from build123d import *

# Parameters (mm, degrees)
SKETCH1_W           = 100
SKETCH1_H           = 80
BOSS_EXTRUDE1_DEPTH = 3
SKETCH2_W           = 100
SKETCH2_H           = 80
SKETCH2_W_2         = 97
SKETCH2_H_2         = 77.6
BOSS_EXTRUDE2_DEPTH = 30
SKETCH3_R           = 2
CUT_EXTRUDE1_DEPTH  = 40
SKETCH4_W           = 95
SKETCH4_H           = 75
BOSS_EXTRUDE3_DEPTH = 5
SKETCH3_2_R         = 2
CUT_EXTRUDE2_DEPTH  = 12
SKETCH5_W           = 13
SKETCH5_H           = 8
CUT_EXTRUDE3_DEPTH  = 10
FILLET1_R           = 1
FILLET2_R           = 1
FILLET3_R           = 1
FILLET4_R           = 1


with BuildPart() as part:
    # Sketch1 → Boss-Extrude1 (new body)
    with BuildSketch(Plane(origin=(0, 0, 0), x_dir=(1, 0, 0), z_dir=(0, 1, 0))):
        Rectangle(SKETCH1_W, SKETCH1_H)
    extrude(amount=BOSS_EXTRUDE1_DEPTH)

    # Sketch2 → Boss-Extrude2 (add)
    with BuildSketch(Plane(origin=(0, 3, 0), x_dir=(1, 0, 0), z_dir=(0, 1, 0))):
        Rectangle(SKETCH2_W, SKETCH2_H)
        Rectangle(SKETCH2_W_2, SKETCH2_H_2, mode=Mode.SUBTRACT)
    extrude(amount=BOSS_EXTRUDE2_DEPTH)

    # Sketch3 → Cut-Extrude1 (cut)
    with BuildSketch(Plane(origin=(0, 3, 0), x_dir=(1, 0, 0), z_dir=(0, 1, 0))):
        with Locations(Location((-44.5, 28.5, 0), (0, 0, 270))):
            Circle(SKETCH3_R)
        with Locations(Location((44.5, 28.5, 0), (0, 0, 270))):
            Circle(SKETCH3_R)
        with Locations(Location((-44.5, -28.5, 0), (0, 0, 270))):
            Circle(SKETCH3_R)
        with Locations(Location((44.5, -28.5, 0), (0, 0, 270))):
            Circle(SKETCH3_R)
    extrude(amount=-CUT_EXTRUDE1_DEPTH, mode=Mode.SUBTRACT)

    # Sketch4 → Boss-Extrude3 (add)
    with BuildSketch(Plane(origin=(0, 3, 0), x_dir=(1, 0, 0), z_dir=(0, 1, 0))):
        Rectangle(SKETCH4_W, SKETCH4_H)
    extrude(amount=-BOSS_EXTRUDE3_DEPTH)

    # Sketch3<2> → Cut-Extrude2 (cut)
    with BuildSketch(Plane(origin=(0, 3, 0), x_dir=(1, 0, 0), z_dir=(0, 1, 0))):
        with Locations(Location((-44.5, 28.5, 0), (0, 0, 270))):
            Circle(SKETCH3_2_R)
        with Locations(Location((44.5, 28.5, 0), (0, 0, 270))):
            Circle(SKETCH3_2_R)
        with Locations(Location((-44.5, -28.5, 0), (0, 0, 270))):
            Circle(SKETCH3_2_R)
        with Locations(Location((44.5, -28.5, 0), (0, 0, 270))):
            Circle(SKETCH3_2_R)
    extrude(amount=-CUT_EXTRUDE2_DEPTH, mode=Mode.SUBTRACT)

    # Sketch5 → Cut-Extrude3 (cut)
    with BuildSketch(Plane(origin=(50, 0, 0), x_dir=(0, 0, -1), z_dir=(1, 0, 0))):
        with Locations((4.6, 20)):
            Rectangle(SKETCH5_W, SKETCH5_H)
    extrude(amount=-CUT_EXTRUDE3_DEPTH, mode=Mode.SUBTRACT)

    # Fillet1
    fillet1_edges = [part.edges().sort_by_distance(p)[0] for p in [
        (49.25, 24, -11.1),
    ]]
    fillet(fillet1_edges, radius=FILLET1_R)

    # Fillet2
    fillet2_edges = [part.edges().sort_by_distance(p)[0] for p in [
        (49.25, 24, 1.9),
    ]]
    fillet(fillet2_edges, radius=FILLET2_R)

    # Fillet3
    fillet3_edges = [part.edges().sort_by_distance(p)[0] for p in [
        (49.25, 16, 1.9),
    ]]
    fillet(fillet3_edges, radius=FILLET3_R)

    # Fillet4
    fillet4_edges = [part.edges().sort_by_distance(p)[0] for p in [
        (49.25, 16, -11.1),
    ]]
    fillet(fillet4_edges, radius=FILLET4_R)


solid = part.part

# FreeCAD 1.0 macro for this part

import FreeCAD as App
import Part
import Sketcher
from FreeCAD import Vector
Q = App.Units.Quantity


def edges_at(feature, points):
    """Names of the edges that pass closest to the given points."""
    edges = feature.Shape.Edges
    near = lambda p: min(range(len(edges)), key=lambda i: edges[i].distToShape(Part.Vertex(*p))[0])
    return sorted({f"Edge{near(p) + 1}" for p in points})

doc = App.newDocument("Part")
body = doc.addObject("PartDesign::Body", "Body")

# Sketch on XZ plane
sketch1 = body.newObject("Sketcher::SketchObject", "Sketch")
sketch1.AttachmentSupport = (doc.getObject("XZ_Plane"), [""])
sketch1.MapMode = "FlatFace"
sketch1.addGeometry([
    Part.LineSegment(Vector(-50, -40, 0), Vector(-50, 40, 0)),
    Part.LineSegment(Vector(-50, 40, 0), Vector(50, 40, 0)),
    Part.LineSegment(Vector(50, 40, 0), Vector(50, -40, 0)),
    Part.LineSegment(Vector(50, -40, 0), Vector(-50, -40, 0)),
], False)
sketch1.addConstraint([
    Sketcher.Constraint("Coincident", 0, 2, 1, 1),
    Sketcher.Constraint("Coincident", 1, 2, 2, 1),
    Sketcher.Constraint("Coincident", 2, 2, 3, 1),
    Sketcher.Constraint("Coincident", 3, 2, 0, 1),
    Sketcher.Constraint("Vertical", 0),
    Sketcher.Constraint("Horizontal", 1),
    Sketcher.Constraint("Vertical", 2),
    Sketcher.Constraint("Horizontal", 3),
    Sketcher.Constraint("Symmetric", 0, 2, 2, 2, -1, 1),
    Sketcher.Constraint("DistanceX", 1, 1, 1, 2, Q("100 mm")),
    Sketcher.Constraint("DistanceY", 0, 1, 0, 2, Q("80 mm")),
])
pad1 = body.newObject("PartDesign::Pad", "Pad")
pad1.Profile = sketch1
pad1.Length = 3
pad1.Reversed = True

# Sketch on XZ plane
sketch2 = body.newObject("Sketcher::SketchObject", "Sketch001")
sketch2.AttachmentSupport = (doc.getObject("XZ_Plane"), [""])
sketch2.MapMode = "FlatFace"
sketch2.AttachmentOffset = App.Placement(Vector(0, 0, -3), App.Rotation())
sketch2.addGeometry([
    Part.LineSegment(Vector(-50, -40, 0), Vector(-50, 40, 0)),  # 0
    Part.LineSegment(Vector(-50, 40, 0), Vector(50, 40, 0)),  # 1
    Part.LineSegment(Vector(50, 40, 0), Vector(50, -40, 0)),  # 2
    Part.LineSegment(Vector(50, -40, 0), Vector(-50, -40, 0)),  # 3
    Part.LineSegment(Vector(48, 39, 0), Vector(-48, 39, 0)),  # 4
    Part.LineSegment(Vector(-48, 39, 0), Vector(-48, -39, 0)),  # 5
    Part.LineSegment(Vector(-48, -39, 0), Vector(48, -39, 0)),  # 6
    Part.LineSegment(Vector(48, -39, 0), Vector(48, 39, 0)),  # 7
], False)
sketch2.addConstraint([
    Sketcher.Constraint("Coincident", 0, 2, 1, 1),
    Sketcher.Constraint("Coincident", 1, 2, 2, 1),
    Sketcher.Constraint("Coincident", 2, 2, 3, 1),
    Sketcher.Constraint("Coincident", 3, 2, 0, 1),
    Sketcher.Constraint("Coincident", 4, 2, 5, 1),
    Sketcher.Constraint("Coincident", 5, 2, 6, 1),
    Sketcher.Constraint("Coincident", 6, 2, 7, 1),
    Sketcher.Constraint("Coincident", 7, 2, 4, 1),
    Sketcher.Constraint("Vertical", 0),
    Sketcher.Constraint("Horizontal", 1),
    Sketcher.Constraint("Vertical", 2),
    Sketcher.Constraint("Horizontal", 3),
    Sketcher.Constraint("Horizontal", 4),
    Sketcher.Constraint("Vertical", 5),
    Sketcher.Constraint("Horizontal", 6),
    Sketcher.Constraint("Vertical", 7),
    Sketcher.Constraint("Symmetric", 0, 2, 2, 2, -1, 1),
    Sketcher.Constraint("Symmetric", 4, 2, 6, 2, -1, 1),
    Sketcher.Constraint("DistanceX", 1, 1, 1, 2, Q("100 mm")),
    Sketcher.Constraint("DistanceX", 4, 2, 4, 1, Q("97 mm")),
    Sketcher.Constraint("DistanceY", 0, 1, 0, 2, Q("80 mm")),
    Sketcher.Constraint("DistanceY", 5, 2, 5, 1, Q("77.6 mm")),
])
pad2 = body.newObject("PartDesign::Pad", "Pad001")
pad2.Profile = sketch2
pad2.Length = 30
pad2.Reversed = True

# Sketch on XZ plane
sketch3 = body.newObject("Sketcher::SketchObject", "Sketch002")
sketch3.AttachmentSupport = (doc.getObject("XZ_Plane"), [""])
sketch3.MapMode = "FlatFace"
sketch3.AttachmentOffset = App.Placement(Vector(0, 0, -3), App.Rotation())
sketch3.addGeometry([
    Part.Circle(Vector(-44.5, -28.5, 0), Vector(0, 0, 1), 2),
    Part.Circle(Vector(44.5, -28.5, 0), Vector(0, 0, 1), 2),
    Part.Circle(Vector(-44.5, 28.5, 0), Vector(0, 0, 1), 2),
    Part.Circle(Vector(44.5, 28.5, 0), Vector(0, 0, 1), 2),
], False)
sketch3.addConstraint([
    Sketcher.Constraint("Equal", 0, 1),
    Sketcher.Constraint("Equal", 1, 2),
    Sketcher.Constraint("Equal", 2, 3),
    Sketcher.Constraint("Symmetric", 1, 3, 2, 3, -1, 1),
    Sketcher.Constraint("Symmetric", 0, 3, 3, 3, -1, 1),
    Sketcher.Constraint("Symmetric", 0, 3, 1, 3, -2),
    Sketcher.Constraint("Diameter", 0, Q("4 mm")),
    Sketcher.Constraint("DistanceX", 0, 3, 1, 3, Q("89 mm")),
    Sketcher.Constraint("DistanceY", 0, 3, 2, 3, Q("57 mm")),
])
pocket1 = body.newObject("PartDesign::Pocket", "Pocket")
pocket1.Profile = sketch3
pocket1.Length = 40
pocket1.Reversed = True

# Sketch on XZ plane
sketch4 = body.newObject("Sketcher::SketchObject", "Sketch003")
sketch4.AttachmentSupport = (doc.getObject("XZ_Plane"), [""])
sketch4.MapMode = "FlatFace"
sketch4.AttachmentOffset = App.Placement(Vector(0, 0, -3), App.Rotation())
sketch4.addGeometry([
    Part.LineSegment(Vector(-48, -38, 0), Vector(-48, 38, 0)),
    Part.LineSegment(Vector(-48, 38, 0), Vector(48, 38, 0)),
    Part.LineSegment(Vector(48, 38, 0), Vector(48, -38, 0)),
    Part.LineSegment(Vector(48, -38, 0), Vector(-48, -38, 0)),
], False)
sketch4.addConstraint([
    Sketcher.Constraint("Coincident", 0, 2, 1, 1),
    Sketcher.Constraint("Coincident", 1, 2, 2, 1),
    Sketcher.Constraint("Coincident", 2, 2, 3, 1),
    Sketcher.Constraint("Coincident", 3, 2, 0, 1),
    Sketcher.Constraint("Vertical", 0),
    Sketcher.Constraint("Horizontal", 1),
    Sketcher.Constraint("Vertical", 2),
    Sketcher.Constraint("Horizontal", 3),
    Sketcher.Constraint("Symmetric", 0, 2, 2, 2, -1, 1),
    Sketcher.Constraint("DistanceX", 1, 1, 1, 2, Q("95 mm")),
    Sketcher.Constraint("DistanceY", 0, 1, 0, 2, Q("75 mm")),
])
pad3 = body.newObject("PartDesign::Pad", "Pad002")
pad3.Profile = sketch4
pad3.Length = 5

# Sketch on XZ plane
sketch5 = body.newObject("Sketcher::SketchObject", "Sketch004")
sketch5.AttachmentSupport = (doc.getObject("XZ_Plane"), [""])
sketch5.MapMode = "FlatFace"
sketch5.AttachmentOffset = App.Placement(Vector(0, 0, -3), App.Rotation())
sketch5.addGeometry([
    Part.Circle(Vector(-44.5, -28.5, 0), Vector(0, 0, 1), 2),
    Part.Circle(Vector(44.5, -28.5, 0), Vector(0, 0, 1), 2),
    Part.Circle(Vector(-44.5, 28.5, 0), Vector(0, 0, 1), 2),
    Part.Circle(Vector(44.5, 28.5, 0), Vector(0, 0, 1), 2),
], False)
sketch5.addConstraint([
    Sketcher.Constraint("Equal", 0, 1),
    Sketcher.Constraint("Equal", 1, 2),
    Sketcher.Constraint("Equal", 2, 3),
    Sketcher.Constraint("Symmetric", 1, 3, 2, 3, -1, 1),
    Sketcher.Constraint("Symmetric", 0, 3, 3, 3, -1, 1),
    Sketcher.Constraint("Symmetric", 0, 3, 1, 3, -2),
    Sketcher.Constraint("Diameter", 0, Q("4 mm")),
    Sketcher.Constraint("DistanceX", 0, 3, 1, 3, Q("89 mm")),
    Sketcher.Constraint("DistanceY", 0, 3, 2, 3, Q("57 mm")),
])
pocket2 = body.newObject("PartDesign::Pocket", "Pocket001")
pocket2.Profile = sketch5
pocket2.Length = 12
pocket2.Reversed = True

# Sketch on YZ plane
sketch6 = body.newObject("Sketcher::SketchObject", "Sketch005")
sketch6.AttachmentSupport = (doc.getObject("YZ_Plane"), [""])
sketch6.MapMode = "FlatFace"
sketch6.AttachmentOffset = App.Placement(Vector(0, 0, 50), App.Rotation())
sketch6.addGeometry([
    Part.LineSegment(Vector(24, 2, 0), Vector(16, 2, 0)),
    Part.LineSegment(Vector(16, 2, 0), Vector(16, -11, 0)),
    Part.LineSegment(Vector(16, -11, 0), Vector(24, -11, 0)),
    Part.LineSegment(Vector(24, -11, 0), Vector(24, 2, 0)),
], False)
sketch6.addConstraint([
    Sketcher.Constraint("Coincident", 0, 2, 1, 1),
    Sketcher.Constraint("Coincident", 1, 2, 2, 1),
    Sketcher.Constraint("Coincident", 2, 2, 3, 1),
    Sketcher.Constraint("Coincident", 3, 2, 0, 1),
    Sketcher.Constraint("Horizontal", 0),
    Sketcher.Constraint("Vertical", 1),
    Sketcher.Constraint("Horizontal", 2),
    Sketcher.Constraint("Vertical", 3),
    Sketcher.Constraint("DistanceX", 0, 2, 0, 1, Q("8 mm")),
    Sketcher.Constraint("DistanceY", 1, 2, 1, 1, Q("13 mm")),
    Sketcher.Constraint("DistanceX", -1, 1, 0, 2, Q("16 mm")),
    Sketcher.Constraint("DistanceY", -1, 1, 0, 2, Q("1.9 mm")),
])
pocket3 = body.newObject("PartDesign::Pocket", "Pocket002")
pocket3.Profile = sketch6
pocket3.Length = 10
doc.recompute()

fillet = body.newObject("PartDesign::Fillet", "Fillet")
fillet.Base = (pocket3, edges_at(pocket3, [(49.25, 24, -11.1)]))
fillet.Radius = 1
doc.recompute()

fillet2 = body.newObject("PartDesign::Fillet", "Fillet001")
fillet2.Base = (fillet, edges_at(fillet, [(49.25, 24, 1.9)]))
fillet2.Radius = 1
doc.recompute()

fillet3 = body.newObject("PartDesign::Fillet", "Fillet002")
fillet3.Base = (fillet2, edges_at(fillet2, [(49.25, 16, 1.9)]))
fillet3.Radius = 1
doc.recompute()

fillet4 = body.newObject("PartDesign::Fillet", "Fillet003")
fillet4.Base = (fillet3, edges_at(fillet3, [(49.25, 16, -11.1)]))
fillet4.Radius = 1

doc.recompute()
